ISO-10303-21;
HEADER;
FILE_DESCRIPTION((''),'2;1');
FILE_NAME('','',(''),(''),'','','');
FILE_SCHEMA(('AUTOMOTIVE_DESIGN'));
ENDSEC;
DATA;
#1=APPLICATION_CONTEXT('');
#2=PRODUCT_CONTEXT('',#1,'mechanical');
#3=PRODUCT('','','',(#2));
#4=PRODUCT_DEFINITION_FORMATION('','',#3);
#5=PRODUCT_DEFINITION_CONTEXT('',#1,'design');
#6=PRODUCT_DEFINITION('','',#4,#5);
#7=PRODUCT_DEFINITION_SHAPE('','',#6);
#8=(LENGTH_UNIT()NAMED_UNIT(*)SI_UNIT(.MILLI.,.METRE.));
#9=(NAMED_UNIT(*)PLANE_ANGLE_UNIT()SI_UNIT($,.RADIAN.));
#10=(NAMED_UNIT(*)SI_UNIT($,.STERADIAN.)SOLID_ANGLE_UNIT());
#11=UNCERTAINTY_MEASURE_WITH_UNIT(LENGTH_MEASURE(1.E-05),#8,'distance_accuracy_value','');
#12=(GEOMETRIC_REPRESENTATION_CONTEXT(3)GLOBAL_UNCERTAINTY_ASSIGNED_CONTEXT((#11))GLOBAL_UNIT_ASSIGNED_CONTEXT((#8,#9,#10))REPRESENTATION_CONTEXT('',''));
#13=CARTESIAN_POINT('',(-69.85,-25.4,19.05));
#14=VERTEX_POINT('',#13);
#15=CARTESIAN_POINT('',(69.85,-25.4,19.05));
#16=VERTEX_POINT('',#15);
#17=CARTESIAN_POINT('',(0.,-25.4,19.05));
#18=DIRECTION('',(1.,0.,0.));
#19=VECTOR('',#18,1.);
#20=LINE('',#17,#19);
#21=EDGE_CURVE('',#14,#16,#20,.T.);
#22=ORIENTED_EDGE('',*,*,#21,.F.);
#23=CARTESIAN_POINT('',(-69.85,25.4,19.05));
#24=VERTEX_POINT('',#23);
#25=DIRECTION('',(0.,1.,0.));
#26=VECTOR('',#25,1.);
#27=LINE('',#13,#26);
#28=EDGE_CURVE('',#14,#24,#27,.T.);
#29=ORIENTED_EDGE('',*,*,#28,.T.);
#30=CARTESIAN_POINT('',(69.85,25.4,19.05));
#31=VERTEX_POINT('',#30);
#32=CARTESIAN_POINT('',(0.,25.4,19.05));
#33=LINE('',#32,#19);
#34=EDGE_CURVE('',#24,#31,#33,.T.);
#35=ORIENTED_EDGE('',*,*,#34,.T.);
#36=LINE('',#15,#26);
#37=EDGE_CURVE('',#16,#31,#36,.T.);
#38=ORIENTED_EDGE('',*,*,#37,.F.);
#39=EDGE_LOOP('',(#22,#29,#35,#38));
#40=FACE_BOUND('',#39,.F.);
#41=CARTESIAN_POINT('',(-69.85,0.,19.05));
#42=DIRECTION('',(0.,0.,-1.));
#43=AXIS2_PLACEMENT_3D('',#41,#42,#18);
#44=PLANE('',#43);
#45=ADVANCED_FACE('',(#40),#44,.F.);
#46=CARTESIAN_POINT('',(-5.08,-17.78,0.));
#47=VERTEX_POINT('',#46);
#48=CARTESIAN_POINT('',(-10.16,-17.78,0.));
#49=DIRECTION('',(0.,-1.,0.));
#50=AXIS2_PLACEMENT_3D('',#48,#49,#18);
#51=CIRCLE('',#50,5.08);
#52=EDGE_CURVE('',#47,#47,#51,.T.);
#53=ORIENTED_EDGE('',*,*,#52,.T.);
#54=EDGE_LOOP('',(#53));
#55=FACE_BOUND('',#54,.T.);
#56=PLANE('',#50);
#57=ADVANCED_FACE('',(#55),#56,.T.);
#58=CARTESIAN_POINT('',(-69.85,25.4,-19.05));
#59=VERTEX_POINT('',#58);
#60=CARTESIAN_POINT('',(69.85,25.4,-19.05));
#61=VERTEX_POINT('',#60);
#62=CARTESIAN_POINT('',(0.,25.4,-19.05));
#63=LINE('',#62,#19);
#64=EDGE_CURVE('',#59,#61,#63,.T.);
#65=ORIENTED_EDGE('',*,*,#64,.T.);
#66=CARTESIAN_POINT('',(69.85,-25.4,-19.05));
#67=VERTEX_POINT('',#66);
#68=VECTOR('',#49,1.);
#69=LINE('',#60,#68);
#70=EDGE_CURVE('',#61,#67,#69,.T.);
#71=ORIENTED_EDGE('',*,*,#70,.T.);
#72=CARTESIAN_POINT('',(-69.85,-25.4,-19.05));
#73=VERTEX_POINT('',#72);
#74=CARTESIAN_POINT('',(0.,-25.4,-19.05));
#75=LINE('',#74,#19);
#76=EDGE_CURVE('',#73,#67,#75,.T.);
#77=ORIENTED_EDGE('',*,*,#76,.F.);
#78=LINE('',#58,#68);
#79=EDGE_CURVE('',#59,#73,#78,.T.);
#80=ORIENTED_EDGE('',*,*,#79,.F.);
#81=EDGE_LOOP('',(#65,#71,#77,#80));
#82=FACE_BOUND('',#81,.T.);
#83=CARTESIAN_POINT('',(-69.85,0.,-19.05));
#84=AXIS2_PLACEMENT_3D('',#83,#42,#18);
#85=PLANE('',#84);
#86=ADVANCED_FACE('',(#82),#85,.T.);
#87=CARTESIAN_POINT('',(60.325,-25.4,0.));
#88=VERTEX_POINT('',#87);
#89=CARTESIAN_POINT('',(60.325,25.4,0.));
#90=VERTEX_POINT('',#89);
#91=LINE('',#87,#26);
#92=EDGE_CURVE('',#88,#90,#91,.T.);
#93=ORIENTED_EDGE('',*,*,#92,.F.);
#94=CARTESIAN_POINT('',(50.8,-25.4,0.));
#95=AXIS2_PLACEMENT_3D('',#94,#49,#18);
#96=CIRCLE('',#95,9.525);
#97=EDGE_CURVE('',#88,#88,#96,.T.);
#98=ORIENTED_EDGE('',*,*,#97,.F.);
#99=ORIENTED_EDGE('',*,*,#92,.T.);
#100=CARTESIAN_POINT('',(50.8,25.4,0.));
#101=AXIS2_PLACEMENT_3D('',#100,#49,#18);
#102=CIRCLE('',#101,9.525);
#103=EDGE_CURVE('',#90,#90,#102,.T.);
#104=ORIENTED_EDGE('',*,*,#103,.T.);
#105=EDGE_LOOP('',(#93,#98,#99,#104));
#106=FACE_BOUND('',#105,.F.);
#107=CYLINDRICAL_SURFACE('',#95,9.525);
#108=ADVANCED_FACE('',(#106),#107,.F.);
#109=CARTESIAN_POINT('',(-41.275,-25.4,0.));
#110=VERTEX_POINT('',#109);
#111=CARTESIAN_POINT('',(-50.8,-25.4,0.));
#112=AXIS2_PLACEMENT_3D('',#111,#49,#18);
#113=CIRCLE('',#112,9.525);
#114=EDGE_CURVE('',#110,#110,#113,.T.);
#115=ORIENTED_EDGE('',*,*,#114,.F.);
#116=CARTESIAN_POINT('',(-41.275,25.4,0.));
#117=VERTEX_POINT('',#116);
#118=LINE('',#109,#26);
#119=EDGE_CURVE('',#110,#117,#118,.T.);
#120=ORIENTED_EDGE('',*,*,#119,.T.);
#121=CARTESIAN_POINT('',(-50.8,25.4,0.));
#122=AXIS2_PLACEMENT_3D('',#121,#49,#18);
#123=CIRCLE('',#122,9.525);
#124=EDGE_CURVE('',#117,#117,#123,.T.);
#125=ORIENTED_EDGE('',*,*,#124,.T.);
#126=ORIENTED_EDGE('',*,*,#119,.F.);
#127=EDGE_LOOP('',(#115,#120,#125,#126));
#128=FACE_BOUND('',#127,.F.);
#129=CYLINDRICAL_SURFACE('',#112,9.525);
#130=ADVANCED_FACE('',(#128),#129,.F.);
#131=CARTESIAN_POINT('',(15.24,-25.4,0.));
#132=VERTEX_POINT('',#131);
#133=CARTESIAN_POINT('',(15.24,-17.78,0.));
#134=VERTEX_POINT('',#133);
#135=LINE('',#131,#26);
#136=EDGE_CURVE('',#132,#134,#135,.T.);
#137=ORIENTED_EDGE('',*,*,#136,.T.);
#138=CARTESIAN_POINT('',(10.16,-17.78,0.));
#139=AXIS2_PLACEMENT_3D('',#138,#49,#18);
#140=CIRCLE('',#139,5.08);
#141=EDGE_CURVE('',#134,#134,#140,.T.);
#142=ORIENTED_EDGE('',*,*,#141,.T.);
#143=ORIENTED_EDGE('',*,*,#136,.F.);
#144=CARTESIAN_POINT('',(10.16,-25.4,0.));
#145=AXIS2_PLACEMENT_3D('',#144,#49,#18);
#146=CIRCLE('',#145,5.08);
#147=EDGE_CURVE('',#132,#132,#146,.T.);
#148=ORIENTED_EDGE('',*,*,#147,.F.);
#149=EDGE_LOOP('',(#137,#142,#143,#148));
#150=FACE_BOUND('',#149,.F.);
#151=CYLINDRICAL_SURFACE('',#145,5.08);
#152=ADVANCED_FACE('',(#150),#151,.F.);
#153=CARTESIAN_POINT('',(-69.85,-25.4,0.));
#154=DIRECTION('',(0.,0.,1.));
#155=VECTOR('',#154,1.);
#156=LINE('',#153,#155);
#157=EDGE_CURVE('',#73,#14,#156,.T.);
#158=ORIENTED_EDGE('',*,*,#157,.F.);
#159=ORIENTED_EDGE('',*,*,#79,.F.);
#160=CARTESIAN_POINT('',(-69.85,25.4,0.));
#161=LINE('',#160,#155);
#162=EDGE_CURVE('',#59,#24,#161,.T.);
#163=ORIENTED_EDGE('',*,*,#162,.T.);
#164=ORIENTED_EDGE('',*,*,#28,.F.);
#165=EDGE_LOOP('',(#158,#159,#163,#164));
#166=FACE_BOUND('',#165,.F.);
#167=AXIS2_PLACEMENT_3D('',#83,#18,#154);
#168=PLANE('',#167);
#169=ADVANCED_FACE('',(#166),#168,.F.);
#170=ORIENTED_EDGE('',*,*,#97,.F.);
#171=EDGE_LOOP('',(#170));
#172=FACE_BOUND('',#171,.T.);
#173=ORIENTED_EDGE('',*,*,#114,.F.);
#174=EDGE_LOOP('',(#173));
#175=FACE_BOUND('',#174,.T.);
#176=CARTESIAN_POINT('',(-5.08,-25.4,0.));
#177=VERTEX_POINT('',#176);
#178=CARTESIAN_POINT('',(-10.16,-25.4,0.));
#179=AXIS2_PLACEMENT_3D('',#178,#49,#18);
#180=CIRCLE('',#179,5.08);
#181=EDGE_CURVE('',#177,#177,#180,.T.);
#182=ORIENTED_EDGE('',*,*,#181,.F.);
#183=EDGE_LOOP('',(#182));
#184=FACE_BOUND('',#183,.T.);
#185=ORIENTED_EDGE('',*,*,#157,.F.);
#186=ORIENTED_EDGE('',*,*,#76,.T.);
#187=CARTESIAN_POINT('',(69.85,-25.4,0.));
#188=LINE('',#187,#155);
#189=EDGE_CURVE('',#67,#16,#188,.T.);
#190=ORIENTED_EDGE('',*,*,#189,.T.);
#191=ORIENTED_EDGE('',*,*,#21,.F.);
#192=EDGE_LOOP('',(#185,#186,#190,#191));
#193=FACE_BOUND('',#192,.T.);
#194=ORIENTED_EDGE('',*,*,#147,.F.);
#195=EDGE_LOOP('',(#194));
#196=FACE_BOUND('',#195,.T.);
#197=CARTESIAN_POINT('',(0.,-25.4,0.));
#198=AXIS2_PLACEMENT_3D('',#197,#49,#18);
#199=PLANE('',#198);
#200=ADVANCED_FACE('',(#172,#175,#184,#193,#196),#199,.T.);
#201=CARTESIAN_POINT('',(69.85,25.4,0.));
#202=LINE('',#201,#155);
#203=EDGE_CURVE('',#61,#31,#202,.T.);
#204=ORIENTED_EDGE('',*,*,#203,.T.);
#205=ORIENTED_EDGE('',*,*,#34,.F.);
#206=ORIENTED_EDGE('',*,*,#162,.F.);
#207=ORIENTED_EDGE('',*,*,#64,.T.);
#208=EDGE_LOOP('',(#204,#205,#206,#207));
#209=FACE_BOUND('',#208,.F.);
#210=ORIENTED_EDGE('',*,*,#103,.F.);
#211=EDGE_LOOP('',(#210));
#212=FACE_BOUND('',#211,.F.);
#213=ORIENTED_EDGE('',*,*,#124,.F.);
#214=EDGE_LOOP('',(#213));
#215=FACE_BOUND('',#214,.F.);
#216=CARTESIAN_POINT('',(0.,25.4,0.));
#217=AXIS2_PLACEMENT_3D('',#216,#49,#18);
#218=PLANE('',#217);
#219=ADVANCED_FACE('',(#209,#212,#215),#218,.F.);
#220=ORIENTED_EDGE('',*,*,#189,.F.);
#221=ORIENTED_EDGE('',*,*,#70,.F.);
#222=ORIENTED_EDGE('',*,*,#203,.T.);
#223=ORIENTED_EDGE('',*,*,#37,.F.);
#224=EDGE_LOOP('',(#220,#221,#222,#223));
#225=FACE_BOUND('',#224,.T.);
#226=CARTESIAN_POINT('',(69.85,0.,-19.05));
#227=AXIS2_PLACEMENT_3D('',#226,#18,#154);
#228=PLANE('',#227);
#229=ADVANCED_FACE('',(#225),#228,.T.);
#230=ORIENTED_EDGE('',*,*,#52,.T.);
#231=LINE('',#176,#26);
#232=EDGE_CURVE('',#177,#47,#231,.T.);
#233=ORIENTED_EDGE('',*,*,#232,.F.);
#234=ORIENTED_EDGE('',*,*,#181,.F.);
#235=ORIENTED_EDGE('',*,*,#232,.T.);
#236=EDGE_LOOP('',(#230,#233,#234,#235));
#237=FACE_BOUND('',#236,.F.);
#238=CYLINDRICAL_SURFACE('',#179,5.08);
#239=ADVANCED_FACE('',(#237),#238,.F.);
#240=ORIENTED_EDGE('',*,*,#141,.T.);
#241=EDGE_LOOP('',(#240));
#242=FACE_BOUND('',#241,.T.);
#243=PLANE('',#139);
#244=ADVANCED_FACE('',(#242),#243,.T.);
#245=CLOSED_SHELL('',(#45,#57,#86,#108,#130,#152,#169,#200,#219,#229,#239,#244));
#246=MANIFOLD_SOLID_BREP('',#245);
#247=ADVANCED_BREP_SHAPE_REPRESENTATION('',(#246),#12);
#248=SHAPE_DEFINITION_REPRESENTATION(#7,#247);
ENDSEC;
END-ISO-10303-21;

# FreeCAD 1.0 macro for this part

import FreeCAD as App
import Part
import Sketcher
from FreeCAD import Vector
Q = App.Units.Quantity

doc = App.newDocument("Part")
body = doc.addObject("PartDesign::Body", "Body")

# Sketch on XZ plane
sketch1 = body.newObject("Sketcher::SketchObject", "Sketch")
sketch1.AttachmentSupport = (doc.getObject("XZ_Plane"), [""])
sketch1.MapMode = "FlatFace"
sketch1.addGeometry(Part.LineSegment(Vector(-70, 19, 0), Vector(-70, -19, 0)), False)
sketch1.addGeometry(Part.LineSegment(Vector(-70, -19, 0), Vector(70, -19, 0)), False)
sketch1.addGeometry(Part.LineSegment(Vector(70, -19, 0), Vector(70, 19, 0)), False)
sketch1.addGeometry(Part.LineSegment(Vector(70, 19, 0), Vector(-70, 19, 0)), False)
sketch1.addConstraint(Sketcher.Constraint("Coincident", 0, 2, 1, 1))
sketch1.addConstraint(Sketcher.Constraint("Coincident", 1, 2, 2, 1))
sketch1.addConstraint(Sketcher.Constraint("Coincident", 2, 2, 3, 1))
sketch1.addConstraint(Sketcher.Constraint("Coincident", 3, 2, 0, 1))
sketch1.addConstraint(Sketcher.Constraint("Vertical", 0))
sketch1.addConstraint(Sketcher.Constraint("Horizontal", 1))
sketch1.addConstraint(Sketcher.Constraint("Vertical", 2))
sketch1.addConstraint(Sketcher.Constraint("Horizontal", 3))
sketch1.addConstraint(Sketcher.Constraint("Symmetric", 0, 2, 2, 2, -1, 1))
sketch1.addConstraint(Sketcher.Constraint("DistanceX", 1, 1, 1, 2, Q("5.5 in")))
sketch1.addConstraint(Sketcher.Constraint("DistanceY", 0, 2, 0, 1, Q("1.5 in")))
pad1 = body.newObject("PartDesign::Pad", "Pad")
pad1.Profile = sketch1
pad1.Length = Q("2 in")
pad1.Midplane = True

# Sketch on XZ plane
sketch2 = body.newObject("Sketcher::SketchObject", "Sketch001")
sketch2.AttachmentSupport = (doc.getObject("XZ_Plane"), [""])
sketch2.MapMode = "FlatFace"
sketch2.AttachmentOffset = App.Placement(Vector(0, 0, 1 * 25.4), App.Rotation())
sketch2.addGeometry(Part.Circle(Vector(-51, 0, 0), Vector(0, 0, 1), 10), False)
sketch2.addGeometry(Part.Circle(Vector(51, 0, 0), Vector(0, 0, 1), 10), False)
sketch2.addConstraint(Sketcher.Constraint("Equal", 0, 1))
sketch2.addConstraint(Sketcher.Constraint("Symmetric", 0, 3, 1, 3, -1, 1))
sketch2.addConstraint(Sketcher.Constraint("PointOnObject", 0, 3, -1))
sketch2.addConstraint(Sketcher.Constraint("Diameter", 0, Q("0.75 in")))
sketch2.addConstraint(Sketcher.Constraint("DistanceX", 0, 3, -1, 1, Q("2 in")))
pocket1 = body.newObject("PartDesign::Pocket", "Pocket")
pocket1.Profile = sketch2
pocket1.Type = "ThroughAll"

# Sketch on XZ plane
sketch3 = body.newObject("Sketcher::SketchObject", "Sketch002")
sketch3.AttachmentSupport = (doc.getObject("XZ_Plane"), [""])
sketch3.MapMode = "FlatFace"
sketch3.AttachmentOffset = App.Placement(Vector(0, 0, 1 * 25.4), App.Rotation())
sketch3.addGeometry(Part.Circle(Vector(-10, 0, 0), Vector(0, 0, 1), 5), False)
sketch3.addGeometry(Part.Circle(Vector(10, 0, 0), Vector(0, 0, 1), 5), False)
sketch3.addConstraint(Sketcher.Constraint("Equal", 0, 1))
sketch3.addConstraint(Sketcher.Constraint("Symmetric", 0, 3, 1, 3, -1, 1))
sketch3.addConstraint(Sketcher.Constraint("PointOnObject", 0, 3, -1))
sketch3.addConstraint(Sketcher.Constraint("Diameter", 0, Q("0.4 in")))
sketch3.addConstraint(Sketcher.Constraint("DistanceX", 0, 3, -1, 1, Q("0.4 in")))
pocket2 = body.newObject("PartDesign::Pocket", "Pocket001")
pocket2.Profile = sketch3
pocket2.Length = Q("0.3 in")

doc.recompute()
